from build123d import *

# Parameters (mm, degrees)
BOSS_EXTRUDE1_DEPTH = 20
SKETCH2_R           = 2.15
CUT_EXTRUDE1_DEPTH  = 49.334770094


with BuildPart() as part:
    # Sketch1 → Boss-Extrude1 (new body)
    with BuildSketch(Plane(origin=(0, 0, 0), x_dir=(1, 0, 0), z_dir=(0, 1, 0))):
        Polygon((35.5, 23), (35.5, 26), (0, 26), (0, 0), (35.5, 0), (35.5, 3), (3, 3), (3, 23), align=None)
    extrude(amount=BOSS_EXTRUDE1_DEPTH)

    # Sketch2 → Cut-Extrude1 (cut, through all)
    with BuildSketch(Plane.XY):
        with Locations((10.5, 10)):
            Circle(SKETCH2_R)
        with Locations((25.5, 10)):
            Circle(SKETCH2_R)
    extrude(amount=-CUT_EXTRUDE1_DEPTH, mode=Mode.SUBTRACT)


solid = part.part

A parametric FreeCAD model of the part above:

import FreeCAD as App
import Part
import Sketcher

doc = App.newDocument("Part")
body = doc.addObject("PartDesign::Body", "Body")

# Sketch on XZ plane
sketch1 = body.newObject("Sketcher::SketchObject", "Sketch")
sketch1.AttachmentSupport = (doc.getObject("XZ_Plane"), [""])
sketch1.MapMode = "FlatFace"
sketch1.addGeometry(Part.LineSegment(App.Vector(35.5, -23, 0), App.Vector(35.5, -26, 0)), False)
sketch1.addGeometry(Part.LineSegment(App.Vector(35.5, -26, 0), App.Vector(0, -26, 0)), False)
sketch1.addGeometry(Part.LineSegment(App.Vector(0, -26, 0), App.Vector(0, 0, 0)), False)
sketch1.addGeometry(Part.LineSegment(App.Vector(0, 0, 0), App.Vector(35.5, 0, 0)), False)
sketch1.addGeometry(Part.LineSegment(App.Vector(35.5, 0, 0), App.Vector(35.5, -3, 0)), False)
sketch1.addGeometry(Part.LineSegment(App.Vector(35.5, -3, 0), App.Vector(3, -3, 0)), False)
sketch1.addGeometry(Part.LineSegment(App.Vector(3, -3, 0), App.Vector(3, -23, 0)), False)
sketch1.addGeometry(Part.LineSegment(App.Vector(3, -23, 0), App.Vector(35.5, -23, 0)), False)
sketch1.addConstraint(Sketcher.Constraint("Coincident", 0, 2, 1, 1))
sketch1.addConstraint(Sketcher.Constraint("Coincident", 1, 2, 2, 1))
sketch1.addConstraint(Sketcher.Constraint("Coincident", 2, 2, 3, 1))
sketch1.addConstraint(Sketcher.Constraint("Coincident", 3, 2, 4, 1))
sketch1.addConstraint(Sketcher.Constraint("Coincident", 4, 2, 5, 1))
sketch1.addConstraint(Sketcher.Constraint("Coincident", 5, 2, 6, 1))
sketch1.addConstraint(Sketcher.Constraint("Coincident", 6, 2, 7, 1))
sketch1.addConstraint(Sketcher.Constraint("Coincident", 7, 2, 0, 1))
sketch1.addConstraint(Sketcher.Constraint("Vertical", 0))
sketch1.addConstraint(Sketcher.Constraint("Horizontal", 1))
sketch1.addConstraint(Sketcher.Constraint("Vertical", 2))
sketch1.addConstraint(Sketcher.Constraint("Horizontal", 3))
sketch1.addConstraint(Sketcher.Constraint("Vertical", 4))
sketch1.addConstraint(Sketcher.Constraint("Horizontal", 5))
sketch1.addConstraint(Sketcher.Constraint("Vertical", 6))
sketch1.addConstraint(Sketcher.Constraint("Horizontal", 7))
sketch1.addConstraint(Sketcher.Constraint("Coincident", 2, 2, -1, 1))
sketch1.addConstraint(Sketcher.Constraint("Vertical", 0, 2, 3, 2))
sketch1.addConstraint(Sketcher.Constraint("Equal", 0, 4))
sketch1.addConstraint(Sketcher.Constraint("DistanceY", 0, 2, 0, 1, 3.0))
sketch1.addConstraint(Sketcher.Constraint("DistanceY", 2, 1, 2, 2, 26.0))
sketch1.addConstraint(Sketcher.Constraint("DistanceX", 1, 2, 1, 1, 35.5))
sketch1.addConstraint(Sketcher.Constraint("DistanceX", 5, 2, 5, 1, 32.5))
pad1 = body.newObject("PartDesign::Pad", "Pad")
pad1.Profile = sketch1
pad1.Length = 20
pad1.Reversed = True

# Sketch on XY plane
sketch2 = body.newObject("Sketcher::SketchObject", "Sketch001")
sketch2.AttachmentSupport = (doc.getObject("XY_Plane"), [""])
sketch2.MapMode = "FlatFace"
sketch2.addGeometry(Part.Circle(App.Vector(10.5, 10, 0), App.Vector(0, 0, 1), 2.1), False)
sketch2.addGeometry(Part.Circle(App.Vector(25.5, 10, 0), App.Vector(0, 0, 1), 2.1), False)
sketch2.addConstraint(Sketcher.Constraint("Equal", 0, 1))
sketch2.addConstraint(Sketcher.Constraint("Horizontal", 0, 3, 1, 3))
sketch2.addConstraint(Sketcher.Constraint("Diameter", 0, 4.3))
sketch2.addConstraint(Sketcher.Constraint("DistanceY", -1, 1, 0, 3, 10.0))
sketch2.addConstraint(Sketcher.Constraint("DistanceX", 0, 3, 1, 3, 15.0))
sketch2.addConstraint(Sketcher.Constraint("DistanceX", -1, 1, 0, 3, 10.5))
pocket1 = body.newObject("PartDesign::Pocket", "Pocket")
pocket1.Profile = sketch2
pocket1.Type = "ThroughAll"

doc.recompute()
